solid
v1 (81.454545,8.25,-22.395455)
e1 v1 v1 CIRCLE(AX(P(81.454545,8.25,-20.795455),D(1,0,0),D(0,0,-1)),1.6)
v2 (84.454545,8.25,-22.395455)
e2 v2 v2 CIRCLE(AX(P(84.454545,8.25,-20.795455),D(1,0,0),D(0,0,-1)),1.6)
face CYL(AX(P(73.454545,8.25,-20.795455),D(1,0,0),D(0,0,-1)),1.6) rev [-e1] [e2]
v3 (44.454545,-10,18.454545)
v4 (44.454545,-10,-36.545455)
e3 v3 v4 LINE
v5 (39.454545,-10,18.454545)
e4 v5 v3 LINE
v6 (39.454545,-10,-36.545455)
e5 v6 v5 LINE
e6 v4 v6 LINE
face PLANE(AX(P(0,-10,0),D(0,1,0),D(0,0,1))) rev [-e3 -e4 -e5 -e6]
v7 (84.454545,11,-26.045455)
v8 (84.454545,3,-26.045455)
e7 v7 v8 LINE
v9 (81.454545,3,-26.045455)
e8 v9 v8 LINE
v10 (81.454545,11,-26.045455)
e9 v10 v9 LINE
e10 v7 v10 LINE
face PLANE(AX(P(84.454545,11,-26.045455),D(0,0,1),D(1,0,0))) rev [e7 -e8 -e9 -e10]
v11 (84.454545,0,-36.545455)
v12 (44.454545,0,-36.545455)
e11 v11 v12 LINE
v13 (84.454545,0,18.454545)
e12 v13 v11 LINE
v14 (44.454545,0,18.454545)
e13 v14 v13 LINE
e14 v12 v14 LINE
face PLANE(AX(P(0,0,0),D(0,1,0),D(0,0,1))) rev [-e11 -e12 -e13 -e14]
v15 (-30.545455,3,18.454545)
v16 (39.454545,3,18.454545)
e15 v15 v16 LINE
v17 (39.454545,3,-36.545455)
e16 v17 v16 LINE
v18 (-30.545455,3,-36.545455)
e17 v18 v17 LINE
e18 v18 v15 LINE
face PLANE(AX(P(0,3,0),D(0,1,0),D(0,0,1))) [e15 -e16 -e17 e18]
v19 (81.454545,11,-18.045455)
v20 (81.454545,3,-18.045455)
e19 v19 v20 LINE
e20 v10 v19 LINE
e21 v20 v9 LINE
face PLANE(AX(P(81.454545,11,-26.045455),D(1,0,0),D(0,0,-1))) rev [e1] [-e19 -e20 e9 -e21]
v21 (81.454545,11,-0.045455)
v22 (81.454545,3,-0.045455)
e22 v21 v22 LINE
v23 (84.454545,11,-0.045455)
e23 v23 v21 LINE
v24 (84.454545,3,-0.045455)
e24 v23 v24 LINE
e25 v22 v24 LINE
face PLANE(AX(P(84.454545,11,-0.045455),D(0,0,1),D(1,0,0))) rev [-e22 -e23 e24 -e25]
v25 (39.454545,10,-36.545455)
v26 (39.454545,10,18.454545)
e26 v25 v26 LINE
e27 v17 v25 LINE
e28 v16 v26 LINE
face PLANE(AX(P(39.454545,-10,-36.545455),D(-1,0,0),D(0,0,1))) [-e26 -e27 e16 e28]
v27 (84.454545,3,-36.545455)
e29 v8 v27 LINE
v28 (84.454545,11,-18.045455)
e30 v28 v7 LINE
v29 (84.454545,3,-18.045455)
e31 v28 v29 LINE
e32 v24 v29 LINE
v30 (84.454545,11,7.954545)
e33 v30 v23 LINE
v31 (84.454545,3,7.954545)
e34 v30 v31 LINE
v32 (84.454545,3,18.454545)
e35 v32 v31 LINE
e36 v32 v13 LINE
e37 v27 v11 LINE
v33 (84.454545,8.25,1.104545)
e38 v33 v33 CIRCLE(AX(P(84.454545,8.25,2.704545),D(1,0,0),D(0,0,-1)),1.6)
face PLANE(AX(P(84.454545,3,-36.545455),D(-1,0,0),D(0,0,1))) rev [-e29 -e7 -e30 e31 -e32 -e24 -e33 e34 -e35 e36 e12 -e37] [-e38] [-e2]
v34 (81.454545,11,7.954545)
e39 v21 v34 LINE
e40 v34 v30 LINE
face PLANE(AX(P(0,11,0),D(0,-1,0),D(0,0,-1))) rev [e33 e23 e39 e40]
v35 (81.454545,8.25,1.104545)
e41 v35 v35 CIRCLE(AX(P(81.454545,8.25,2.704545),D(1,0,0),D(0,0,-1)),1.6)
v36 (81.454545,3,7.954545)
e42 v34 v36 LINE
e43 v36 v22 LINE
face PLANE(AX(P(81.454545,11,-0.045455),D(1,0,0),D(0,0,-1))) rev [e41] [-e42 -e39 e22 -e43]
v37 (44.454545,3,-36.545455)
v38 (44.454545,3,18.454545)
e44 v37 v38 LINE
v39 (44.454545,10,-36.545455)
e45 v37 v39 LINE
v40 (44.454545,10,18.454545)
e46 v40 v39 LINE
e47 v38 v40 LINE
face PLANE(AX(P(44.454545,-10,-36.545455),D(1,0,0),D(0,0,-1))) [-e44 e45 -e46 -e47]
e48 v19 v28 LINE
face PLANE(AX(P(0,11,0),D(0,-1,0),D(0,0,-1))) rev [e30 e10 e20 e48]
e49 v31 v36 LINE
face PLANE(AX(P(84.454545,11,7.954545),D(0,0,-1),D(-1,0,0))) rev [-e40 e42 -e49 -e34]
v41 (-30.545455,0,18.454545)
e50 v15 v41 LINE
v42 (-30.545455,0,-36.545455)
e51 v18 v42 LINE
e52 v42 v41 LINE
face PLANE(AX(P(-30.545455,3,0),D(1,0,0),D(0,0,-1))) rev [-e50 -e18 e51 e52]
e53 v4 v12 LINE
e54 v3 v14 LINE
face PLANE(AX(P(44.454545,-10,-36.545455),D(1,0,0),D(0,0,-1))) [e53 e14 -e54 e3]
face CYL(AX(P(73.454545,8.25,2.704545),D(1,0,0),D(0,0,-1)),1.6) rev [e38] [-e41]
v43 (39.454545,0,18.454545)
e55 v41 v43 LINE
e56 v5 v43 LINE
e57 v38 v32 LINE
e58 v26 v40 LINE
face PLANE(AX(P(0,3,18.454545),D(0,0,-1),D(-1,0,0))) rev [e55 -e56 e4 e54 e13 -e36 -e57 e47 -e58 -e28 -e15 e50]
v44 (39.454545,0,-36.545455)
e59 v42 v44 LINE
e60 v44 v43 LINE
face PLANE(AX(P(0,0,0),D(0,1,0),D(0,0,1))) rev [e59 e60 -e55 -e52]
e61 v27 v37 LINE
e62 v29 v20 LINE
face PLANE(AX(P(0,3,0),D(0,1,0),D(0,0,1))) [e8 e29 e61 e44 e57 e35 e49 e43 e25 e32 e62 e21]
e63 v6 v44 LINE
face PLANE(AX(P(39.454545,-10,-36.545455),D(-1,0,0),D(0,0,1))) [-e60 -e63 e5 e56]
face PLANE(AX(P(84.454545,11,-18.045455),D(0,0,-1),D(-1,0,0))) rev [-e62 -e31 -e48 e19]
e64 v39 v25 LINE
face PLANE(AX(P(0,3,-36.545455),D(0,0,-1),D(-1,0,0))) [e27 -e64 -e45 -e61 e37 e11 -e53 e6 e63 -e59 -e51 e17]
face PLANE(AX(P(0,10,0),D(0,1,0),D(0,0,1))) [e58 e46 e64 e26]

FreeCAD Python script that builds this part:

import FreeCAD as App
import Part
import Sketcher

V = App.Vector

doc = App.newDocument("Part")
params = doc.addObject("Spreadsheet::Sheet", "Params")
for row, (alias, value) in enumerate([
    ("sketch1_width", "70 mm"),
    ("sketch1_height", "55 mm"),
    ("pad1_length", "3 mm"),
    ("sketch2_width", "5 mm"),
    ("sketch2_height", "55 mm"),
    ("pad2_length", "10 mm"),
    ("pad2_length2", "10 mm"),
    ("sketch3_width", "40 mm"),
    ("sketch3_height", "55 mm"),
    ("pad3_length", "3 mm"),
    ("sketch4_width", "3 mm"),
    ("sketch4_height", "8 mm"),
    ("pad4_length", "11 mm"),
    ("sketch5_diameter", "3.2 mm"),
    ("pocket1_length", "11 mm"),
], start=1):
    params.set(f"A{row}", alias)
    params.set(f"B{row}", "=" + value)
    params.setAlias(f"B{row}", alias)

body = doc.addObject("PartDesign::Body", "Body")

# Sketch on XZ plane
sketch1 = body.newObject("Sketcher::SketchObject", "Sketch")
sketch1.AttachmentSupport = (doc.getObject("XZ_Plane"), [""])
sketch1.MapMode = "FlatFace"
sketch1.addGeometry([
    Part.LineSegment(V(-31, -37, 0), V(-31, 18, 0)),
    Part.LineSegment(V(-31, 18, 0), V(39, 18, 0)),
    Part.LineSegment(V(39, 18, 0), V(39, -37, 0)),
    Part.LineSegment(V(39, -37, 0), V(-31, -37, 0)),
], False)
sketch1.addConstraint([
    Sketcher.Constraint("Coincident", 0, 2, 1, 1),
    Sketcher.Constraint("Coincident", 1, 2, 2, 1),
    Sketcher.Constraint("Coincident", 2, 2, 3, 1),
    Sketcher.Constraint("Coincident", 3, 2, 0, 1),
    Sketcher.Constraint("Vertical", 0),
    Sketcher.Constraint("Horizontal", 1),
    Sketcher.Constraint("Vertical", 2),
    Sketcher.Constraint("Horizontal", 3),
    Sketcher.Constraint("DistanceX", 1, 1, 1, 2, 70.0),
    Sketcher.Constraint("DistanceY", 0, 1, 0, 2, 55.0),
    Sketcher.Constraint("DistanceX", 0, 2, -1, 1, 30.545455),
    Sketcher.Constraint("DistanceY", -1, 1, 0, 2, 18.454545),
])
sketch1.setExpression("Constraints[8]", "Params.sketch1_width")
sketch1.setExpression("Constraints[9]", "Params.sketch1_height")
pad1 = body.newObject("PartDesign::Pad", "Pad")
pad1.Profile = sketch1
pad1.setExpression("Length", "Params.pad1_length")
pad1.Reversed = True

# Sketch on XZ plane
sketch2 = body.newObject("Sketcher::SketchObject", "Sketch001")
sketch2.AttachmentSupport = (doc.getObject("XZ_Plane"), [""])
sketch2.MapMode = "FlatFace"
sketch2.addGeometry([
    Part.LineSegment(V(39, -37, 0), V(39, 18, 0)),
    Part.LineSegment(V(39, 18, 0), V(44, 18, 0)),
    Part.LineSegment(V(44, 18, 0), V(44, -37, 0)),
    Part.LineSegment(V(44, -37, 0), V(39, -37, 0)),
], False)
sketch2.addConstraint([
    Sketcher.Constraint("Coincident", 0, 2, 1, 1),
    Sketcher.Constraint("Coincident", 1, 2, 2, 1),
    Sketcher.Constraint("Coincident", 2, 2, 3, 1),
    Sketcher.Constraint("Coincident", 3, 2, 0, 1),
    Sketcher.Constraint("Vertical", 0),
    Sketcher.Constraint("Horizontal", 1),
    Sketcher.Constraint("Vertical", 2),
    Sketcher.Constraint("Horizontal", 3),
    Sketcher.Constraint("DistanceX", 1, 1, 1, 2, 5.0),
    Sketcher.Constraint("DistanceY", 0, 1, 0, 2, 55.0),
    Sketcher.Constraint("DistanceX", -1, 1, 0, 2, 39.454545),
    Sketcher.Constraint("DistanceY", -1, 1, 0, 2, 18.454545),
])
sketch2.setExpression("Constraints[8]", "Params.sketch2_width")
sketch2.setExpression("Constraints[9]", "Params.sketch2_height")
pad2 = body.newObject("PartDesign::Pad", "Pad001")
pad2.Profile = sketch2
pad2.Type = "TwoLengths"
pad2.setExpression("Length", "Params.pad2_length")
pad2.setExpression("Length2", "Params.pad2_length2")
pad2.Reversed = True

# Sketch on XZ plane
sketch3 = body.newObject("Sketcher::SketchObject", "Sketch002")
sketch3.AttachmentSupport = (doc.getObject("XZ_Plane"), [""])
sketch3.MapMode = "FlatFace"
sketch3.addGeometry([
    Part.LineSegment(V(44, -37, 0), V(44, 18, 0)),
    Part.LineSegment(V(44, 18, 0), V(84, 18, 0)),
    Part.LineSegment(V(84, 18, 0), V(84, -37, 0)),
    Part.LineSegment(V(84, -37, 0), V(44, -37, 0)),
], False)
sketch3.addConstraint([
    Sketcher.Constraint("Coincident", 0, 2, 1, 1),
    Sketcher.Constraint("Coincident", 1, 2, 2, 1),
    Sketcher.Constraint("Coincident", 2, 2, 3, 1),
    Sketcher.Constraint("Coincident", 3, 2, 0, 1),
    Sketcher.Constraint("Vertical", 0),
    Sketcher.Constraint("Horizontal", 1),
    Sketcher.Constraint("Vertical", 2),
    Sketcher.Constraint("Horizontal", 3),
    Sketcher.Constraint("DistanceX", 1, 1, 1, 2, 40.0),
    Sketcher.Constraint("DistanceY", 0, 1, 0, 2, 55.0),
    Sketcher.Constraint("DistanceX", -1, 1, 0, 2, 44.454545),
    Sketcher.Constraint("DistanceY", -1, 1, 0, 2, 18.454545),
])
sketch3.setExpression("Constraints[8]", "Params.sketch3_width")
sketch3.setExpression("Constraints[9]", "Params.sketch3_height")
pad3 = body.newObject("PartDesign::Pad", "Pad002")
pad3.Profile = sketch3
pad3.setExpression("Length", "Params.pad3_length")
pad3.Reversed = True

# Sketch on XZ plane
sketch4 = body.newObject("Sketcher::SketchObject", "Sketch003")
sketch4.AttachmentSupport = (doc.getObject("XZ_Plane"), [""])
sketch4.MapMode = "FlatFace"
sketch4.addGeometry([
    Part.LineSegment(V(81.5, -26, 0), V(81.5, -18, 0)),  # 0
    Part.LineSegment(V(81.5, -18, 0), V(84.5, -18, 0)),  # 1
    Part.LineSegment(V(84.5, -18, 0), V(84.5, -26, 0)),  # 2
    Part.LineSegment(V(84.5, -26, 0), V(81.5, -26, 0)),  # 3
    Part.LineSegment(V(81.5, 0, 0), V(81.5, 8, 0)),  # 4
    Part.LineSegment(V(81.5, 8, 0), V(84.5, 8, 0)),  # 5
    Part.LineSegment(V(84.5, 8, 0), V(84.5, 0, 0)),  # 6
    Part.LineSegment(V(84.5, 0, 0), V(81.5, 0, 0)),  # 7
], False)
sketch4.addConstraint([
    Sketcher.Constraint("Coincident", 0, 2, 1, 1),
    Sketcher.Constraint("Coincident", 1, 2, 2, 1),
    Sketcher.Constraint("Coincident", 2, 2, 3, 1),
    Sketcher.Constraint("Coincident", 3, 2, 0, 1),
    Sketcher.Constraint("Coincident", 4, 2, 5, 1),
    Sketcher.Constraint("Coincident", 5, 2, 6, 1),
    Sketcher.Constraint("Coincident", 6, 2, 7, 1),
    Sketcher.Constraint("Coincident", 7, 2, 4, 1),
    Sketcher.Constraint("Vertical", 0),
    Sketcher.Constraint("Horizontal", 1),
    Sketcher.Constraint("Vertical", 2),
    Sketcher.Constraint("Horizontal", 3),
    Sketcher.Constraint("Vertical", 4),
    Sketcher.Constraint("Horizontal", 5),
    Sketcher.Constraint("Vertical", 6),
    Sketcher.Constraint("Horizontal", 7),
    Sketcher.Constraint("Vertical", 3, 2, 4, 2),
    Sketcher.Constraint("Vertical", 2, 2, 5, 2),
    Sketcher.Constraint("Equal", 2, 4),
    Sketcher.Constraint("DistanceX", 1, 1, 1, 2, 3.0),
    Sketcher.Constraint("DistanceY", 0, 1, 0, 2, 8.0),
    Sketcher.Constraint("DistanceY", 0, 2, 4, 2, 26.0),
    Sketcher.Constraint("DistanceX", -1, 1, 0, 2, 81.454545),
    Sketcher.Constraint("DistanceY", 0, 2, -1, 1, 18.045455),
])
sketch4.setExpression("Constraints[19]", "Params.sketch4_width")
sketch4.setExpression("Constraints[20]", "Params.sketch4_height")
pad4 = body.newObject("PartDesign::Pad", "Pad003")
pad4.Profile = sketch4
pad4.setExpression("Length", "Params.pad4_length")
pad4.Reversed = True

# Sketch on YZ plane
sketch5 = body.newObject("Sketcher::SketchObject", "Sketch004")
sketch5.AttachmentSupport = (doc.getObject("YZ_Plane"), [""])
sketch5.MapMode = "FlatFace"
sketch5.AttachmentOffset = App.Placement(V(0, 0, 84.454545), App.Rotation())
sketch5.addGeometry([
    Part.Circle(V(8.2, 2.7, 0), V(0, 0, 1), 1.6),
    Part.Circle(V(8.2, -20.8, 0), V(0, 0, 1), 1.6),
], False)
sketch5.addConstraint([
    Sketcher.Constraint("Equal", 0, 1),
    Sketcher.Constraint("Vertical", 0, 3, 1, 3),
    Sketcher.Constraint("Diameter", 0, 3.2),
    Sketcher.Constraint("DistanceY", 1, 3, 0, 3, 23.5),
    Sketcher.Constraint("DistanceX", -1, 1, 0, 3, 8.25),
    Sketcher.Constraint("DistanceY", -1, 1, 0, 3, 2.704545),
])
sketch5.setExpression("Constraints[2]", "Params.sketch5_diameter")
pocket1 = body.newObject("PartDesign::Pocket", "Pocket")
pocket1.Profile = sketch5
pocket1.setExpression("Length", "Params.pocket1_length")

doc.recompute()
